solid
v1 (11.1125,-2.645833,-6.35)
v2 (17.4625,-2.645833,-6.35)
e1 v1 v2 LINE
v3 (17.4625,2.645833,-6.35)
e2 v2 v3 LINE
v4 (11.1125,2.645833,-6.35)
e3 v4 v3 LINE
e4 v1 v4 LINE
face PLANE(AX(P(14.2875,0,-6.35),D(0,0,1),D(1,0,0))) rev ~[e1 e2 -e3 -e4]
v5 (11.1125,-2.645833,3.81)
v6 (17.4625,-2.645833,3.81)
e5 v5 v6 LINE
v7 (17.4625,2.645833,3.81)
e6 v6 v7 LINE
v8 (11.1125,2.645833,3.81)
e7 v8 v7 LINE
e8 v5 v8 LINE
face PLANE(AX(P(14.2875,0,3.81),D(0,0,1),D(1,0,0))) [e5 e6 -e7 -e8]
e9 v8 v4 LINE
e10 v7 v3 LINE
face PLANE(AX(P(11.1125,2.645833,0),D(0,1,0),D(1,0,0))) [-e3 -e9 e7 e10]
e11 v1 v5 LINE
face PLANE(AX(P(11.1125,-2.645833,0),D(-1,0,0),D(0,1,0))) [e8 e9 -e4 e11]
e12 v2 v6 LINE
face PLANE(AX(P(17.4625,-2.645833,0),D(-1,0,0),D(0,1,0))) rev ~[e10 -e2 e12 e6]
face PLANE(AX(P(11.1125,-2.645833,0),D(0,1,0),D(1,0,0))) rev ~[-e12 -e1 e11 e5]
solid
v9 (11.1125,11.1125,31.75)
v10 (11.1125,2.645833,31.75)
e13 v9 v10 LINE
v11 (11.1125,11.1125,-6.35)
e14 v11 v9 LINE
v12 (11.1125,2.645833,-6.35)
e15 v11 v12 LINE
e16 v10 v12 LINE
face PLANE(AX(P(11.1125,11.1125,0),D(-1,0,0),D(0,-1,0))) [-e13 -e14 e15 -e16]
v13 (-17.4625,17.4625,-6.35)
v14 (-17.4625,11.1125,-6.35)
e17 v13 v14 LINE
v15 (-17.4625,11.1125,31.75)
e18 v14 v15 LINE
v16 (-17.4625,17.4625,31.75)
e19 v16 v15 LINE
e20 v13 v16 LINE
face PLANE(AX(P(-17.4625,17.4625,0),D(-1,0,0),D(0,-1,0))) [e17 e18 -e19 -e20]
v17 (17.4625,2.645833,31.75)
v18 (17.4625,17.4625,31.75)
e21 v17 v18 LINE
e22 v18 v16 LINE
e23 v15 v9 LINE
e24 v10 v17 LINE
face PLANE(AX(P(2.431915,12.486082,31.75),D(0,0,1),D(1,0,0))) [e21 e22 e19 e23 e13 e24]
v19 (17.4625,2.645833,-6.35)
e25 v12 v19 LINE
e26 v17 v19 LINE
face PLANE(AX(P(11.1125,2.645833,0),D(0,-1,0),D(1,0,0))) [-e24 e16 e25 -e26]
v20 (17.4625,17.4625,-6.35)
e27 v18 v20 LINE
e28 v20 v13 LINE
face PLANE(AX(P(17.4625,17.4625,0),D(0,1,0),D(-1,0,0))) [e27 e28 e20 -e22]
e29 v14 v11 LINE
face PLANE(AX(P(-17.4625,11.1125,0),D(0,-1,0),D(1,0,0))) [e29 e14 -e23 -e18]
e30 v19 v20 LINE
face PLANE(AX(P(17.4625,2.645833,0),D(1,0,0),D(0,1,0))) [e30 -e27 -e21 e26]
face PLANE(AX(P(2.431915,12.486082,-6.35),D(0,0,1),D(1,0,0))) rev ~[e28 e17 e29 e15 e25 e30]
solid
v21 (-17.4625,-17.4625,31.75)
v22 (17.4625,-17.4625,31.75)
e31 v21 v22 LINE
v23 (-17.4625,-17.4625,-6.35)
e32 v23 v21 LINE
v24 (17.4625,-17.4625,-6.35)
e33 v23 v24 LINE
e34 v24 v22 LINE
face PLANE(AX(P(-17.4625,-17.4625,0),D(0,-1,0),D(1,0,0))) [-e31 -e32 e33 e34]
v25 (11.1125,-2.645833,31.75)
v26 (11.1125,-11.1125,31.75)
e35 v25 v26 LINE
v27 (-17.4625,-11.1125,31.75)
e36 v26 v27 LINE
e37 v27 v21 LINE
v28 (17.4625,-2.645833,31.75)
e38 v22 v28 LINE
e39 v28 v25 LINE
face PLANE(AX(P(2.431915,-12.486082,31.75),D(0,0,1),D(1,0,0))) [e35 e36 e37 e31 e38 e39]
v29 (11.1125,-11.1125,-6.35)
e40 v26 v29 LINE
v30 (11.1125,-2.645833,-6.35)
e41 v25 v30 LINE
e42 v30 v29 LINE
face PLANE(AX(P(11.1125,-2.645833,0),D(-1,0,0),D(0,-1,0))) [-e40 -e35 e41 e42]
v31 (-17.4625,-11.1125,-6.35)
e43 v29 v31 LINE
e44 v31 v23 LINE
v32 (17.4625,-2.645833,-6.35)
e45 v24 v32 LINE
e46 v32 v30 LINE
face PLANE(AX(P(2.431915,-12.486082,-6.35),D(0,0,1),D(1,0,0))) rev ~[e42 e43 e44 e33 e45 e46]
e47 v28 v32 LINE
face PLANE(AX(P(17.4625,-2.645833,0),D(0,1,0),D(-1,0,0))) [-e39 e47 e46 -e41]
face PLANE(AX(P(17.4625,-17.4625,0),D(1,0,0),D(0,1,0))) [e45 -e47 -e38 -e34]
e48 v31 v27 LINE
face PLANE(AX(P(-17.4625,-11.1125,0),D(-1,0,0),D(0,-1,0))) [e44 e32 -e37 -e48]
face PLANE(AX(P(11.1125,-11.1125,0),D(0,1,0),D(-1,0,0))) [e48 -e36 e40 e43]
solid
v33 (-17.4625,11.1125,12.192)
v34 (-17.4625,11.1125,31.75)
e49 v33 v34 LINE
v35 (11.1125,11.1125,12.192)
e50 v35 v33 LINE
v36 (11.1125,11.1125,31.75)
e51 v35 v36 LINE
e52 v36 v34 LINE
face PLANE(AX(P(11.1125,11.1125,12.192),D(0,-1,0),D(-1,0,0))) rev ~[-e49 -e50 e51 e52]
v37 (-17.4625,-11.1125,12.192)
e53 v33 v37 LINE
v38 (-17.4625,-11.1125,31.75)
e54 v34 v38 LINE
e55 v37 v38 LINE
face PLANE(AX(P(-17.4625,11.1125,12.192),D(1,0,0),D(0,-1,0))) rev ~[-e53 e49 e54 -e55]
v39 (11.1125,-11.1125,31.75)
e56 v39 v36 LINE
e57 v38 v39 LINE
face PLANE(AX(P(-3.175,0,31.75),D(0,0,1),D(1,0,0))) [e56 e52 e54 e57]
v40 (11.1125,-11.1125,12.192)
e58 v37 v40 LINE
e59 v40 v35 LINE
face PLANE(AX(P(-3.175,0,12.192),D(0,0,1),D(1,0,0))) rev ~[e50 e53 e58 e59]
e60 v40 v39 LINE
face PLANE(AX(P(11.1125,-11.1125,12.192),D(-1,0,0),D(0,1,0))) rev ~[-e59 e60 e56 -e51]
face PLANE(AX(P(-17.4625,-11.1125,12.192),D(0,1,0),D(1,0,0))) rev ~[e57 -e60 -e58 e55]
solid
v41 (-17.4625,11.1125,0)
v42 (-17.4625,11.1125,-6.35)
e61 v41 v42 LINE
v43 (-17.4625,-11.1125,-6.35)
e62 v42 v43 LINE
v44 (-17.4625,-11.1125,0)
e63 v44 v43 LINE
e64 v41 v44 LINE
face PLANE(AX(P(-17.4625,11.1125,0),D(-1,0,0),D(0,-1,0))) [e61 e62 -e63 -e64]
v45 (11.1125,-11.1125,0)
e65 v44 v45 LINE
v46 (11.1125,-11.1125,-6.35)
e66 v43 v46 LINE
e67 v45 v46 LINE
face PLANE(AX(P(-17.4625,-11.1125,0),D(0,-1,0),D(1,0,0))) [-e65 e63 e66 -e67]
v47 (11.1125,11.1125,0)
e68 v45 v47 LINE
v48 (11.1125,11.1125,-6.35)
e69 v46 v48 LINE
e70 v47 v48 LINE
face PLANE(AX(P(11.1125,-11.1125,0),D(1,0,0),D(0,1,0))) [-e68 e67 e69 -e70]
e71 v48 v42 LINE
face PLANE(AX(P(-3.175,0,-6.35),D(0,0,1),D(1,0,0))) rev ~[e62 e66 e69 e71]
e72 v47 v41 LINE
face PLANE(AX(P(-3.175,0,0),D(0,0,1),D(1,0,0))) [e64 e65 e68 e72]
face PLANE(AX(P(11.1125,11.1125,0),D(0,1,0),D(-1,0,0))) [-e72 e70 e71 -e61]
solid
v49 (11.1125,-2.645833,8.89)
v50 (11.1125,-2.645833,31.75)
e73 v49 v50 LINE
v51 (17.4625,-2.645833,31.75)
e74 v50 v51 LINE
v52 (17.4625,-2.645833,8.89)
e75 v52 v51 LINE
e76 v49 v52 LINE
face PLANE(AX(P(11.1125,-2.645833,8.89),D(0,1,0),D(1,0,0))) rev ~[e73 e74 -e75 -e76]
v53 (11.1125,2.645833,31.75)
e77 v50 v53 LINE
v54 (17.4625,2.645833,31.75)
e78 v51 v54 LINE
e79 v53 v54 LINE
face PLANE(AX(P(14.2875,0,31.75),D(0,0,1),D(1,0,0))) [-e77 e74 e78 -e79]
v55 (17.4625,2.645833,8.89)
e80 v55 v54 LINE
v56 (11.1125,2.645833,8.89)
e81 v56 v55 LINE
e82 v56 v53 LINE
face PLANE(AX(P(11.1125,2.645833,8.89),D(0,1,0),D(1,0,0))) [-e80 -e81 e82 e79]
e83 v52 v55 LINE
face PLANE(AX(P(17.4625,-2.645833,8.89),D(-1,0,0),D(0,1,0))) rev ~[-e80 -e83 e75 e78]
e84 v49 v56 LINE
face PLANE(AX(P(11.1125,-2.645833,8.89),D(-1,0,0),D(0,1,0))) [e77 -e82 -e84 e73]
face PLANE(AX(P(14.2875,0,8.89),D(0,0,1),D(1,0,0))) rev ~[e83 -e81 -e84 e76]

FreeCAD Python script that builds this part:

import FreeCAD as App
import Part
import Sketcher
from FreeCAD import Vector
Q = App.Units.Quantity

doc = App.newDocument("Part")
body = doc.addObject("PartDesign::Body", "Body")

# Sketch on XY plane
sketch1 = doc.addObject("Sketcher::SketchObject", "Sketch")
body.addObject(sketch1)
sketch1.AttachmentSupport = (doc.XY_Plane, [""])
sketch1.MapMode = "FlatFace"
sketch1.AttachmentOffset = App.Placement(Vector(0, 0, 0.48 * 25.4), App.Rotation())
sketch1.addGeometry([
    Part.LineSegment(Vector(11, 11, 0), Vector(-17, 11, 0)),
    Part.LineSegment(Vector(-17, 11, 0), Vector(-17, -11, 0)),
    Part.LineSegment(Vector(-17, -11, 0), Vector(11, -11, 0)),
    Part.LineSegment(Vector(11, -11, 0), Vector(11, 11, 0)),
], False)
sketch1.addConstraint([
    Sketcher.Constraint("Coincident", 0, 2, 1, 1),
    Sketcher.Constraint("Coincident", 1, 2, 2, 1),
    Sketcher.Constraint("Coincident", 2, 2, 3, 1),
    Sketcher.Constraint("Coincident", 3, 2, 0, 1),
    Sketcher.Constraint("Horizontal", 0),
    Sketcher.Constraint("Vertical", 1),
    Sketcher.Constraint("Horizontal", 2),
    Sketcher.Constraint("Vertical", 3),
    Sketcher.Constraint("DistanceX", 0, 2, 0, 1, Q("1.125 in")),
    Sketcher.Constraint("DistanceY", 1, 2, 1, 1, Q("0.875 in")),
    Sketcher.Constraint("DistanceX", 0, 2, -1, 1, Q("0.6875 in")),
    Sketcher.Constraint("DistanceY", -1, 1, 0, 2, Q("0.4375 in")),
])
pad1 = doc.addObject("PartDesign::Pad", "Pad")
body.addObject(pad1)
pad1.Profile = sketch1
pad1.Length = Q("0.77 in")
body2 = doc.addObject("PartDesign::Body", "Body001")

# Sketch on XY plane
sketch2 = doc.addObject("Sketcher::SketchObject", "Sketch001")
body2.addObject(sketch2)
sketch2.AttachmentSupport = (doc.getObject("XY_Plane001"), [""])
sketch2.MapMode = "FlatFace"
sketch2.addGeometry([
    Part.LineSegment(Vector(11, 11, 0), Vector(-17, 11, 0)),
    Part.LineSegment(Vector(-17, 11, 0), Vector(-17, -11, 0)),
    Part.LineSegment(Vector(-17, -11, 0), Vector(11, -11, 0)),
    Part.LineSegment(Vector(11, -11, 0), Vector(11, 11, 0)),
], False)
sketch2.addConstraint([
    Sketcher.Constraint("Coincident", 0, 2, 1, 1),
    Sketcher.Constraint("Coincident", 1, 2, 2, 1),
    Sketcher.Constraint("Coincident", 2, 2, 3, 1),
    Sketcher.Constraint("Coincident", 3, 2, 0, 1),
    Sketcher.Constraint("Horizontal", 0),
    Sketcher.Constraint("Vertical", 1),
    Sketcher.Constraint("Horizontal", 2),
    Sketcher.Constraint("Vertical", 3),
    Sketcher.Constraint("DistanceX", 0, 2, 0, 1, Q("1.125 in")),
    Sketcher.Constraint("DistanceY", 1, 2, 1, 1, Q("0.875 in")),
    Sketcher.Constraint("DistanceX", 0, 2, -1, 1, Q("0.6875 in")),
    Sketcher.Constraint("DistanceY", -1, 1, 0, 2, Q("0.4375 in")),
])
pad2 = doc.addObject("PartDesign::Pad", "Pad001")
body2.addObject(pad2)
pad2.Profile = sketch2
pad2.Length = Q("0.25 in")
pad2.Reversed = True
body3 = doc.addObject("PartDesign::Body", "Body002")

# Sketch on XY plane
sketch3 = doc.addObject("Sketcher::SketchObject", "Sketch002")
body3.addObject(sketch3)
sketch3.AttachmentSupport = (doc.getObject("XY_Plane002"), [""])
sketch3.MapMode = "FlatFace"
sketch3.addGeometry([
    Part.LineSegment(Vector(17, 17, 0), Vector(-17, 17, 0)),  # 0
    Part.LineSegment(Vector(-17, 17, 0), Vector(-17, 11, 0)),  # 1
    Part.LineSegment(Vector(-17, 11, 0), Vector(11, 11, 0)),  # 2
    Part.LineSegment(Vector(11, 11, 0), Vector(11, 3, 0)),  # 3
    Part.LineSegment(Vector(11, 3, 0), Vector(17, 3, 0)),  # 4
    Part.LineSegment(Vector(17, 3, 0), Vector(17, 17, 0)),  # 5
], False)
sketch3.addConstraint([
    Sketcher.Constraint("Coincident", 0, 2, 1, 1),
    Sketcher.Constraint("Coincident", 1, 2, 2, 1),
    Sketcher.Constraint("Coincident", 2, 2, 3, 1),
    Sketcher.Constraint("Coincident", 3, 2, 4, 1),
    Sketcher.Constraint("Coincident", 4, 2, 5, 1),
    Sketcher.Constraint("Coincident", 5, 2, 0, 1),
    Sketcher.Constraint("Horizontal", 0),
    Sketcher.Constraint("Vertical", 1),
    Sketcher.Constraint("Horizontal", 2),
    Sketcher.Constraint("Vertical", 3),
    Sketcher.Constraint("Horizontal", 4),
    Sketcher.Constraint("Vertical", 5),
    Sketcher.Constraint("Equal", 4, 1),
    Sketcher.Constraint("DistanceX", 4, 1, 4, 2, Q("0.25 in")),
    Sketcher.Constraint("DistanceX", 0, 2, 0, 1, Q("1.375 in")),
    Sketcher.Constraint("DistanceX", 0, 2, -1, 1, Q("0.6875 in")),
    Sketcher.Constraint("DistanceY", -1, 1, 0, 2, Q("0.6875 in")),
    Sketcher.Constraint("DistanceY", 3, 2, 3, 1, Q("8.466667 mm")),
])
pad3 = doc.addObject("PartDesign::Pad", "Pad002")
body3.addObject(pad3)
pad3.Profile = sketch3
pad3.Type = "TwoLengths"
pad3.Length = Q("1.25 in")
pad3.Length2 = Q("0.25 in")
body4 = doc.addObject("PartDesign::Body", "Body003")

# Sketch on XY plane
sketch4 = doc.addObject("Sketcher::SketchObject", "Sketch003")
body4.addObject(sketch4)
sketch4.AttachmentSupport = (doc.getObject("XY_Plane003"), [""])
sketch4.MapMode = "FlatFace"
sketch4.addGeometry([
    Part.LineSegment(Vector(11, -11, 0), Vector(-17, -11, 0)),  # 0
    Part.LineSegment(Vector(-17, -11, 0), Vector(-17, -17, 0)),  # 1
    Part.LineSegment(Vector(-17, -17, 0), Vector(17, -17, 0)),  # 2
    Part.LineSegment(Vector(17, -17, 0), Vector(17, -3, 0)),  # 3
    Part.LineSegment(Vector(17, -3, 0), Vector(11, -3, 0)),  # 4
    Part.LineSegment(Vector(11, -3, 0), Vector(11, -11, 0)),  # 5
], False)
sketch4.addConstraint([
    Sketcher.Constraint("Coincident", 0, 2, 1, 1),
    Sketcher.Constraint("Coincident", 1, 2, 2, 1),
    Sketcher.Constraint("Coincident", 2, 2, 3, 1),
    Sketcher.Constraint("Coincident", 3, 2, 4, 1),
    Sketcher.Constraint("Coincident", 4, 2, 5, 1),
    Sketcher.Constraint("Coincident", 5, 2, 0, 1),
    Sketcher.Constraint("Horizontal", 0),
    Sketcher.Constraint("Vertical", 1),
    Sketcher.Constraint("Horizontal", 2),
    Sketcher.Constraint("Vertical", 3),
    Sketcher.Constraint("Horizontal", 4),
    Sketcher.Constraint("Vertical", 5),
    Sketcher.Constraint("Equal", 4, 1),
    Sketcher.Constraint("DistanceX", 4, 2, 4, 1, Q("0.25 in")),
    Sketcher.Constraint("DistanceX", 0, 2, 0, 1, Q("1.125 in")),
    Sketcher.Constraint("DistanceX", 0, 2, -1, 1, Q("0.6875 in")),
    Sketcher.Constraint("DistanceY", 0, 2, -1, 1, Q("0.4375 in")),
    Sketcher.Constraint("DistanceY", 3, 1, 3, 2, Q("14.816667 mm")),
])
pad4 = doc.addObject("PartDesign::Pad", "Pad003")
body4.addObject(pad4)
pad4.Profile = sketch4
pad4.Type = "TwoLengths"
pad4.Length = Q("1.25 in")
pad4.Length2 = Q("0.25 in")
body5 = doc.addObject("PartDesign::Body", "Body004")

# Sketch on XY plane
sketch5 = doc.addObject("Sketcher::SketchObject", "Sketch004")
body5.addObject(sketch5)
sketch5.AttachmentSupport = (doc.getObject("XY_Plane004"), [""])
sketch5.MapMode = "FlatFace"
sketch5.addGeometry([
    Part.LineSegment(Vector(11, 3, 0), Vector(11, -3, 0)),
    Part.LineSegment(Vector(11, -3, 0), Vector(17, -3, 0)),
    Part.LineSegment(Vector(17, -3, 0), Vector(17, 3, 0)),
    Part.LineSegment(Vector(17, 3, 0), Vector(11, 3, 0)),
], False)
sketch5.addConstraint([
    Sketcher.Constraint("Coincident", 0, 2, 1, 1),
    Sketcher.Constraint("Coincident", 1, 2, 2, 1),
    Sketcher.Constraint("Coincident", 2, 2, 3, 1),
    Sketcher.Constraint("Coincident", 3, 2, 0, 1),
    Sketcher.Constraint("Vertical", 0),
    Sketcher.Constraint("Horizontal", 1),
    Sketcher.Constraint("Vertical", 2),
    Sketcher.Constraint("Horizontal", 3),
    Sketcher.Constraint("DistanceX", 1, 1, 1, 2, Q("0.25 in")),
    Sketcher.Constraint("DistanceX", -1, 1, 0, 2, Q("0.4375 in")),
    Sketcher.Constraint("DistanceY", 0, 2, 0, 1, Q("5.291667 mm")),
    Sketcher.Constraint("DistanceY", 0, 2, -1, 1, Q("2.645833 mm")),
])
pad5 = doc.addObject("PartDesign::Pad", "Pad004")
body5.addObject(pad5)
pad5.Profile = sketch5
pad5.Type = "TwoLengths"
pad5.Length = Q("0.25 in")
pad5.Length2 = Q("0.15 in")
pad5.Reversed = True
body6 = doc.addObject("PartDesign::Body", "Body005")

# Sketch on XY plane
sketch6 = doc.addObject("Sketcher::SketchObject", "Sketch005")
body6.addObject(sketch6)
sketch6.AttachmentSupport = (doc.getObject("XY_Plane005"), [""])
sketch6.MapMode = "FlatFace"
sketch6.AttachmentOffset = App.Placement(Vector(0, 0, 0.35 * 25.4), App.Rotation())
sketch6.addGeometry([
    Part.LineSegment(Vector(11, 3, 0), Vector(11, -3, 0)),
    Part.LineSegment(Vector(11, -3, 0), Vector(17, -3, 0)),
    Part.LineSegment(Vector(17, -3, 0), Vector(17, 3, 0)),
    Part.LineSegment(Vector(17, 3, 0), Vector(11, 3, 0)),
], False)
sketch6.addConstraint([
    Sketcher.Constraint("Coincident", 0, 2, 1, 1),
    Sketcher.Constraint("Coincident", 1, 2, 2, 1),
    Sketcher.Constraint("Coincident", 2, 2, 3, 1),
    Sketcher.Constraint("Coincident", 3, 2, 0, 1),
    Sketcher.Constraint("Vertical", 0),
    Sketcher.Constraint("Horizontal", 1),
    Sketcher.Constraint("Vertical", 2),
    Sketcher.Constraint("Horizontal", 3),
    Sketcher.Constraint("DistanceX", 1, 1, 1, 2, Q("0.25 in")),
    Sketcher.Constraint("DistanceX", -1, 1, 0, 2, Q("0.4375 in")),
    Sketcher.Constraint("DistanceY", 0, 2, 0, 1, Q("5.291667 mm")),
    Sketcher.Constraint("DistanceY", 0, 2, -1, 1, Q("2.645833 mm")),
])
pad6 = doc.addObject("PartDesign::Pad", "Pad005")
body6.addObject(pad6)
pad6.Profile = sketch6
pad6.Length = Q("0.9 in")

doc.recompute()
